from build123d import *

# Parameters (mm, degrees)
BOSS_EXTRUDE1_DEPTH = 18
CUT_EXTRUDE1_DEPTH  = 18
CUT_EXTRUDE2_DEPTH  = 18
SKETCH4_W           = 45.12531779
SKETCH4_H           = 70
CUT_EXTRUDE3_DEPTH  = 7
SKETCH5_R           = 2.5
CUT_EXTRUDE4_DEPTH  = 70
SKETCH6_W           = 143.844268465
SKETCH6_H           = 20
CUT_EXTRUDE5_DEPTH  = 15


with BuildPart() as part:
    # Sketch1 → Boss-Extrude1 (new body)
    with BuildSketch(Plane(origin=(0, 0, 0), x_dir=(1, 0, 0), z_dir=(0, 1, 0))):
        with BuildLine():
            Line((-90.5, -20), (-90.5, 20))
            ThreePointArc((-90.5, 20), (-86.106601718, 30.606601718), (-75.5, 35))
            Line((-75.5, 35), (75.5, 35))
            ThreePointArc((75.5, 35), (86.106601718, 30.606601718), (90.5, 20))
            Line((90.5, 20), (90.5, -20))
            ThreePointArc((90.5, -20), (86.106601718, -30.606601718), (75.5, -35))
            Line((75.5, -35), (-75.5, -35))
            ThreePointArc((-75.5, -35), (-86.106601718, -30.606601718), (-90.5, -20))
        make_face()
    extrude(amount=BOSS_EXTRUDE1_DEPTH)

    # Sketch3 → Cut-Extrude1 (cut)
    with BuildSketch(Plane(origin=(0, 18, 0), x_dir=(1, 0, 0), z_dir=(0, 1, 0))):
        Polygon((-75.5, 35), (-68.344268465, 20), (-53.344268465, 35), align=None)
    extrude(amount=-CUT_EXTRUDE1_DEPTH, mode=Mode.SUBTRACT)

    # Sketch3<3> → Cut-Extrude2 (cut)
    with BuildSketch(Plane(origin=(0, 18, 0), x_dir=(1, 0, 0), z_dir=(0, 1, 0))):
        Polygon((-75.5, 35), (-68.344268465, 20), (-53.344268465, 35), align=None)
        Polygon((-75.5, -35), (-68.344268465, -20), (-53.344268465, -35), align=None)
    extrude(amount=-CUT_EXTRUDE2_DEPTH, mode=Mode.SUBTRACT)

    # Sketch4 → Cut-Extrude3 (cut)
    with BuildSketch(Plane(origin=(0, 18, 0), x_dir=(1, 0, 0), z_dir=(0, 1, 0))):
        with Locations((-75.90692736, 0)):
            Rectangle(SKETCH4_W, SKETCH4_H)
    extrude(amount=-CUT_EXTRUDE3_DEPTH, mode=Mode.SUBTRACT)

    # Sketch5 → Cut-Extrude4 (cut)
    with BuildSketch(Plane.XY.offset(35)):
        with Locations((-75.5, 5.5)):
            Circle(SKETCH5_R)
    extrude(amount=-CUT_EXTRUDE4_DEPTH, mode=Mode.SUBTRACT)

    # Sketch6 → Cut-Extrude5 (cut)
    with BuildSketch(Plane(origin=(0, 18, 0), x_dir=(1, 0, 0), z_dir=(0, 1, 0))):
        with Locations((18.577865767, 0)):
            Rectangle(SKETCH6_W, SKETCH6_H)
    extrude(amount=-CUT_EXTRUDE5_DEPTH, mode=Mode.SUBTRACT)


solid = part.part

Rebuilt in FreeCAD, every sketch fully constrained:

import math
import FreeCAD as App
import Part
import Sketcher
from FreeCAD import Vector
Q = App.Units.Quantity


def add_polygon(sketch, points):
    """Adds a closed chain of lines whose ends are joined by coincident constraints."""
    first, n = sketch.GeometryCount, len(points)
    for a, b in zip(points, points[1:] + points[:1]):
        sketch.addGeometry(Part.LineSegment(App.Vector(*a, 0), App.Vector(*b, 0)), False)
    for i in range(n):
        sketch.addConstraint(Sketcher.Constraint("Coincident", first + i, 2, first + (i + 1) % n, 1))

doc = App.newDocument("Part")
body = doc.addObject("PartDesign::Body", "Body")

# Sketch on XZ plane
sketch1 = doc.addObject("Sketcher::SketchObject", "Sketch")
body.addObject(sketch1)
sketch1.AttachmentSupport = (doc.XZ_Plane, [""])
sketch1.MapMode = "FlatFace"
sketch1.addGeometry([
    Part.LineSegment(Vector(-90.5, -20, 0), Vector(-90.5, 20, 0)),  # 0
    Part.ArcOfCircle(Part.Circle(Vector(-75.5, 20, 0), Vector(0, 0, 1), 15), math.radians(90), math.radians(180)),  # 1
    Part.LineSegment(Vector(-75.5, 35, 0), Vector(75.5, 35, 0)),  # 2
    Part.ArcOfCircle(Part.Circle(Vector(75.5, 20, 0), Vector(0, 0, 1), 15), math.radians(0), math.radians(90)),  # 3
    Part.LineSegment(Vector(90.5, 20, 0), Vector(90.5, -20, 0)),  # 4
    Part.ArcOfCircle(Part.Circle(Vector(75.5, -20, 0), Vector(0, 0, 1), 15), math.radians(-90), math.radians(0)),  # 5
    Part.LineSegment(Vector(75.5, -35, 0), Vector(-75.5, -35, 0)),  # 6
    Part.ArcOfCircle(Part.Circle(Vector(-75.5, -20, 0), Vector(0, 0, 1), 15), math.radians(180), math.radians(270)),  # 7
], False)
sketch1.addConstraint([
    Sketcher.Constraint("Tangent", 0, 2, 1, 2),
    Sketcher.Constraint("Tangent", 1, 1, 2, 1),
    Sketcher.Constraint("Tangent", 2, 2, 3, 2),
    Sketcher.Constraint("Tangent", 3, 1, 4, 1),
    Sketcher.Constraint("Tangent", 4, 2, 5, 2),
    Sketcher.Constraint("Tangent", 5, 1, 6, 1),
    Sketcher.Constraint("Tangent", 6, 2, 7, 2),
    Sketcher.Constraint("Tangent", 7, 1, 0, 1),
    Sketcher.Constraint("Vertical", 0),
    Sketcher.Constraint("Horizontal", 2),
    Sketcher.Constraint("Vertical", 4),
    Sketcher.Constraint("Horizontal", 6),
    Sketcher.Constraint("Equal", 1, 3),
    Sketcher.Constraint("Equal", 3, 5),
    Sketcher.Constraint("Equal", 5, 7),
    Sketcher.Constraint("Symmetric", 1, 3, 5, 3, -1, 1),
    Sketcher.Constraint("Radius", 1, Q("15 mm")),
    Sketcher.Constraint("DistanceX", 2, 1, 2, 2, Q("151 mm")),
    Sketcher.Constraint("DistanceY", 0, 1, 0, 2, Q("40 mm")),
])
pad1 = doc.addObject("PartDesign::Pad", "Pad")
body.addObject(pad1)
pad1.Profile = sketch1
pad1.Length = 18
pad1.Reversed = True

# Sketch on XZ plane
sketch2 = doc.addObject("Sketcher::SketchObject", "Sketch001")
body.addObject(sketch2)
sketch2.AttachmentSupport = (doc.XZ_Plane, [""])
sketch2.MapMode = "FlatFace"
sketch2.AttachmentOffset = App.Placement(Vector(0, 0, -18), App.Rotation())
add_polygon(sketch2, [(-75.5, -35), (-68.344268, -20), (-53.344268, -35)])  # lines 0-2
sketch2.addConstraint([
    Sketcher.Constraint("Horizontal", 2),
    Sketcher.Constraint("Angle", 1, Q("-45 deg")),
    Sketcher.Constraint("DistanceY", 0, 2, -1, 1, Q("20 mm")),
    Sketcher.Constraint("DistanceY", 1, 2, -1, 1, Q("35 mm")),
    Sketcher.Constraint("DistanceX", 2, 2, -1, 1, Q("75.5 mm")),
    Sketcher.Constraint("Distance", 0, Q("16.619401 mm")),
])
pocket1 = doc.addObject("PartDesign::Pocket", "Pocket")
body.addObject(pocket1)
pocket1.Profile = sketch2
pocket1.Length = 18
pocket1.Reversed = True

# Sketch on XZ plane
sketch3 = doc.addObject("Sketcher::SketchObject", "Sketch002")
body.addObject(sketch3)
sketch3.AttachmentSupport = (doc.XZ_Plane, [""])
sketch3.MapMode = "FlatFace"
sketch3.AttachmentOffset = App.Placement(Vector(0, 0, -18), App.Rotation())
add_polygon(sketch3, [(-75.5, -35), (-68.344268, -20), (-53.344268, -35)])  # lines 0-2
add_polygon(sketch3, [(-68.344268, 20), (-75.5, 35), (-53.344268, 35)])  # lines 3-5
sketch3.addConstraint([
    Sketcher.Constraint("Horizontal", 2),
    Sketcher.Constraint("Horizontal", 4),
    Sketcher.Constraint("Symmetric", 2, 2, 3, 2, -1),
    Sketcher.Constraint("Symmetric", 0, 2, 5, 2, -1),
    Sketcher.Constraint("Perpendicular", 1, 5),
    Sketcher.Constraint("Vertical", 1, 2, 4, 2),
    Sketcher.Constraint("DistanceY", 0, 2, -1, 1, Q("20 mm")),
    Sketcher.Constraint("DistanceY", 1, 2, -1, 1, Q("35 mm")),
    Sketcher.Constraint("DistanceX", 2, 2, -1, 1, Q("75.5 mm")),
    Sketcher.Constraint("Distance", 0, Q("16.619401 mm")),
])
pocket2 = doc.addObject("PartDesign::Pocket", "Pocket001")
body.addObject(pocket2)
pocket2.Profile = sketch3
pocket2.Length = 18
pocket2.Reversed = True

# Sketch on XZ plane
sketch4 = doc.addObject("Sketcher::SketchObject", "Sketch003")
body.addObject(sketch4)
sketch4.AttachmentSupport = (doc.XZ_Plane, [""])
sketch4.MapMode = "FlatFace"
sketch4.AttachmentOffset = App.Placement(Vector(0, 0, -18), App.Rotation())
add_polygon(sketch4, [(-98.469586, -35), (-98.469586, 35), (-53.344268, 35), (-53.344268, -35)])  # lines 0-3
sketch4.addConstraint([
    Sketcher.Constraint("Vertical", 0),
    Sketcher.Constraint("Horizontal", 1),
    Sketcher.Constraint("Vertical", 2),
    Sketcher.Constraint("Horizontal", 3),
    Sketcher.Constraint("DistanceY", 0, 1, 0, 2, Q("70 mm")),
    Sketcher.Constraint("DistanceY", -1, 1, 0, 2, Q("35 mm")),
    Sketcher.Constraint("DistanceX", 1, 1, 1, 2, Q("45.125318 mm")),
    Sketcher.Constraint("DistanceX", 1, 2, -1, 1, Q("53.344268 mm")),
])
pocket3 = doc.addObject("PartDesign::Pocket", "Pocket002")
body.addObject(pocket3)
pocket3.Profile = sketch4
pocket3.Length = 7
pocket3.Reversed = True

# Sketch on XY plane
sketch5 = doc.addObject("Sketcher::SketchObject", "Sketch004")
body.addObject(sketch5)
sketch5.AttachmentSupport = (doc.XY_Plane, [""])
sketch5.MapMode = "FlatFace"
sketch5.AttachmentOffset = App.Placement(Vector(0, 0, 35), App.Rotation())
sketch5.addGeometry(Part.Circle(Vector(-75.5, 5.5, 0), Vector(0, 0, 1), 2.5), False)
sketch5.addConstraint([
    Sketcher.Constraint("Diameter", 0, Q("5 mm")),
    Sketcher.Constraint("DistanceX", 0, 3, -1, 1, Q("75.5 mm")),
    Sketcher.Constraint("DistanceY", -1, 1, 0, 3, Q("5.5 mm")),
])
pocket4 = doc.addObject("PartDesign::Pocket", "Pocket003")
body.addObject(pocket4)
pocket4.Profile = sketch5
pocket4.Length = 70

# Sketch on XZ plane
sketch6 = doc.addObject("Sketcher::SketchObject", "Sketch005")
body.addObject(sketch6)
sketch6.AttachmentSupport = (doc.XZ_Plane, [""])
sketch6.MapMode = "FlatFace"
sketch6.AttachmentOffset = App.Placement(Vector(0, 0, -18), App.Rotation())
add_polygon(sketch6, [(-53.344268, -10), (-53.344268, 10), (90.5, 10), (90.5, -10)])  # lines 0-3
sketch6.addConstraint([
    Sketcher.Constraint("Vertical", 0),
    Sketcher.Constraint("Horizontal", 1),
    Sketcher.Constraint("Vertical", 2),
    Sketcher.Constraint("Horizontal", 3),
    Sketcher.Constraint("DistanceY", 0, 1, 0, 2, Q("20 mm")),
    Sketcher.Constraint("DistanceY", -1, 1, 0, 2, Q("10 mm")),
    Sketcher.Constraint("DistanceX", -1, 1, 1, 2, Q("90.5 mm")),
    Sketcher.Constraint("DistanceX", 1, 1, 1, 2, Q("143.844268 mm")),
])
pocket5 = doc.addObject("PartDesign::Pocket", "Pocket004")
body.addObject(pocket5)
pocket5.Profile = sketch6
pocket5.Length = 15
pocket5.Reversed = True

doc.recompute()
